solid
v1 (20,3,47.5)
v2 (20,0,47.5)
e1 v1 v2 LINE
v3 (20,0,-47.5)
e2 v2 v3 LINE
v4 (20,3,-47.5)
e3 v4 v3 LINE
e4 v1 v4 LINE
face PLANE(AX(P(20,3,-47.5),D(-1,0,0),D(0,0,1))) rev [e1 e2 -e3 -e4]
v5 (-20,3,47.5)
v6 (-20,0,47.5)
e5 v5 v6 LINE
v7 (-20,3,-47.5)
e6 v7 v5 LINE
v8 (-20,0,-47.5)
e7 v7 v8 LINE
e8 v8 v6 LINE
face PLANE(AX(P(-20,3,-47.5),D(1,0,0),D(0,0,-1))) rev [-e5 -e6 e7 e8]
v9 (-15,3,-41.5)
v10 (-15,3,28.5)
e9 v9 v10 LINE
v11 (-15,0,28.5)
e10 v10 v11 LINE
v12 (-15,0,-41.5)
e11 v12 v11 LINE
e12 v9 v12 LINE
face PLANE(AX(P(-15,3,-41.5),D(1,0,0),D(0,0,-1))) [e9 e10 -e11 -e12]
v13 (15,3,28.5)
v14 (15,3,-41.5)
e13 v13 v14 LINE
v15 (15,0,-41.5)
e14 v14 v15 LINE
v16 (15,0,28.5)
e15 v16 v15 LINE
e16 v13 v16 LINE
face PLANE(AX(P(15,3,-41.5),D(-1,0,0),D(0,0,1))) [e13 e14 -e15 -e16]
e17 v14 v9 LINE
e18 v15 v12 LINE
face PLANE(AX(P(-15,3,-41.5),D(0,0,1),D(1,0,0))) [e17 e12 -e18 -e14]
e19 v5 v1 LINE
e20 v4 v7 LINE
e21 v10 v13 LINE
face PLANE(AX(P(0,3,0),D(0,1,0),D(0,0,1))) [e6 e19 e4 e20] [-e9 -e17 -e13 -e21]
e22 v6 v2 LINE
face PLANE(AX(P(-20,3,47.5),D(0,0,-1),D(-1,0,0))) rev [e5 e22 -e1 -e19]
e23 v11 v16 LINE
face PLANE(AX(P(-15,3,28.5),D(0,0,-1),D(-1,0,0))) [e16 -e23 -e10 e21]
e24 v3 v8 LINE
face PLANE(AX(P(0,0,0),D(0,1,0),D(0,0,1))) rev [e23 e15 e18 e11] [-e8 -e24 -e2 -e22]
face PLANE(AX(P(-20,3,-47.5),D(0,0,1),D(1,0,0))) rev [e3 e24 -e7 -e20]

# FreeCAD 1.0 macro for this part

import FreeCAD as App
import Part
import Sketcher

doc = App.newDocument("Part")
body = doc.addObject("PartDesign::Body", "Body")

sketch1 = body.newObject("Sketcher::SketchObject", "Sketch")
sketch1.AttachmentSupport = (doc.getObject("XZ_Plane"), [""])
sketch1.MapMode = "FlatFace"
sketch1.addGeometry(Part.LineSegment(App.Vector(-20, -47.5, 0), App.Vector(-20, 47.5, 0)), False)
sketch1.addGeometry(Part.LineSegment(App.Vector(-20, 47.5, 0), App.Vector(20, 47.5, 0)), False)
sketch1.addGeometry(Part.LineSegment(App.Vector(20, 47.5, 0), App.Vector(20, -47.5, 0)), False)
sketch1.addGeometry(Part.LineSegment(App.Vector(20, -47.5, 0), App.Vector(-20, -47.5, 0)), False)
sketch1.addGeometry(Part.LineSegment(App.Vector(15, 28.5, 0), App.Vector(-15, 28.5, 0)), False)
sketch1.addGeometry(Part.LineSegment(App.Vector(-15, 28.5, 0), App.Vector(-15, -41.5, 0)), False)
sketch1.addGeometry(Part.LineSegment(App.Vector(-15, -41.5, 0), App.Vector(15, -41.5, 0)), False)
sketch1.addGeometry(Part.LineSegment(App.Vector(15, -41.5, 0), App.Vector(15, 28.5, 0)), False)
sketch1.addConstraint(Sketcher.Constraint("Coincident", 0, 2, 1, 1))
sketch1.addConstraint(Sketcher.Constraint("Coincident", 1, 2, 2, 1))
sketch1.addConstraint(Sketcher.Constraint("Coincident", 2, 2, 3, 1))
sketch1.addConstraint(Sketcher.Constraint("Coincident", 3, 2, 0, 1))
sketch1.addConstraint(Sketcher.Constraint("Coincident", 4, 2, 5, 1))
sketch1.addConstraint(Sketcher.Constraint("Coincident", 5, 2, 6, 1))
sketch1.addConstraint(Sketcher.Constraint("Coincident", 6, 2, 7, 1))
sketch1.addConstraint(Sketcher.Constraint("Coincident", 7, 2, 4, 1))
sketch1.addConstraint(Sketcher.Constraint("Vertical", 0))
sketch1.addConstraint(Sketcher.Constraint("Horizontal", 1))
sketch1.addConstraint(Sketcher.Constraint("Vertical", 2))
sketch1.addConstraint(Sketcher.Constraint("Horizontal", 3))
sketch1.addConstraint(Sketcher.Constraint("Horizontal", 4))
sketch1.addConstraint(Sketcher.Constraint("Vertical", 5))
sketch1.addConstraint(Sketcher.Constraint("Horizontal", 6))
sketch1.addConstraint(Sketcher.Constraint("Vertical", 7))
sketch1.addConstraint(Sketcher.Constraint("Symmetric", 0, 2, 2, 2, -1, 1))
sketch1.addConstraint(Sketcher.Constraint("DistanceX", 1, 1, 1, 2, 40.0))
sketch1.addConstraint(Sketcher.Constraint("DistanceX", 4, 2, 4, 1, 30.0))
sketch1.addConstraint(Sketcher.Constraint("DistanceY", 0, 1, 0, 2, 95.0))
sketch1.addConstraint(Sketcher.Constraint("DistanceY", 5, 2, 5, 1, 70.0))
sketch1.addConstraint(Sketcher.Constraint("DistanceX", 4, 2, -1, 1, 15.0))
sketch1.addConstraint(Sketcher.Constraint("DistanceY", 4, 2, 0, 2, 19.0))
pad1 = body.newObject("PartDesign::Pad", "Pad")
pad1.Profile = sketch1
pad1.Length = 3
pad1.Reversed = True

doc.recompute()
